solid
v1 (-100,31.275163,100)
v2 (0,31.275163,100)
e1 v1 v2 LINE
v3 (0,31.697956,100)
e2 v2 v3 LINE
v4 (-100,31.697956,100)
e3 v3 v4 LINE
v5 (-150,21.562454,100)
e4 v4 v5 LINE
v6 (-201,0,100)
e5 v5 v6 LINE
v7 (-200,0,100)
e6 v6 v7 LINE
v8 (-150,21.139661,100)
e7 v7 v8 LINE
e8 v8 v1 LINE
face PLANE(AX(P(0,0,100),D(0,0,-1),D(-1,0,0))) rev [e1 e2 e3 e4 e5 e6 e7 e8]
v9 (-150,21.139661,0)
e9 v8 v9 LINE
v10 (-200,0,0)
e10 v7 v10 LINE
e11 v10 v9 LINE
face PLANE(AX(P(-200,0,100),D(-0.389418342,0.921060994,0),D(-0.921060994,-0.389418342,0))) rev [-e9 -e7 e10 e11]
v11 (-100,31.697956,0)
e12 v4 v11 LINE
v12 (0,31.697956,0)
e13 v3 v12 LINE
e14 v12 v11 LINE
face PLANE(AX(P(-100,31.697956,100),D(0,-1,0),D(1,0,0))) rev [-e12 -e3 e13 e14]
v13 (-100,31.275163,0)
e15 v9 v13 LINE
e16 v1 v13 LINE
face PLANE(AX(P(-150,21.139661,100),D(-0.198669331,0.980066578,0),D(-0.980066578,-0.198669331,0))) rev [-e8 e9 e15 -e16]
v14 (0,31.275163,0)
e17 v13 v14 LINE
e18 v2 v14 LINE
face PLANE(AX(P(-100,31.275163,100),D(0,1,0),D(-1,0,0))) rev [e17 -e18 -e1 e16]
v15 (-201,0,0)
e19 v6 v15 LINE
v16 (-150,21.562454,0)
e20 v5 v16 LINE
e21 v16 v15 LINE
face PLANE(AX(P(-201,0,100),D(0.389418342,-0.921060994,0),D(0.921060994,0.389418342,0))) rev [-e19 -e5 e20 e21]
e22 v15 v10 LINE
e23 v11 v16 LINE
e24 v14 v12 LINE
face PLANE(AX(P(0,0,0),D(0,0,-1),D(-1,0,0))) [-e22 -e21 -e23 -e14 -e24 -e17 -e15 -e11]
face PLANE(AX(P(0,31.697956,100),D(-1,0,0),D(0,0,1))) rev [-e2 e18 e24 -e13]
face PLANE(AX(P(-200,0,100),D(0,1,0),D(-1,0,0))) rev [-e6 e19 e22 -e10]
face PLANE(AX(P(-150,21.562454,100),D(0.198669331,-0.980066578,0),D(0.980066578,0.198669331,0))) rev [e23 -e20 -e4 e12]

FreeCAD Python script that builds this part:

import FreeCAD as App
import Part
import Sketcher
from FreeCAD import Vector
Q = App.Units.Quantity


def add_polygon(sketch, points):
    """Adds a closed chain of lines whose ends are joined by coincident constraints."""
    first, n = sketch.GeometryCount, len(points)
    for a, b in zip(points, points[1:] + points[:1]):
        sketch.addGeometry(Part.LineSegment(App.Vector(*a, 0), App.Vector(*b, 0)), False)
    for i in range(n):
        sketch.addConstraint(Sketcher.Constraint("Coincident", first + i, 2, first + (i + 1) % n, 1))

doc = App.newDocument("Part")
body = doc.addObject("PartDesign::Body", "Body")

# Sketch on XY plane
sketch1 = body.newObject("Sketcher::SketchObject", "Sketch")
sketch1.AttachmentSupport = (doc.getObject("XY_Plane"), [""])
sketch1.MapMode = "FlatFace"
add_polygon(sketch1, [(-200, 0), (-150, 21.14), (-100, 31.28), (0, 31.28), (0, 31.7), (-100, 31.7), (-150, 21.56), (-201, 0)])  # lines 0-7
sketch1.addConstraint(Sketcher.Constraint("Horizontal", 2))
sketch1.addConstraint(Sketcher.Constraint("Vertical", 3))
sketch1.addConstraint(Sketcher.Constraint("Horizontal", 4))
sketch1.addConstraint(Sketcher.Constraint("Horizontal", 7))
sketch1.addConstraint(Sketcher.Constraint("PointOnObject", 2, 2, -2))
sketch1.addConstraint(Sketcher.Constraint("PointOnObject", 6, 2, -1))
sketch1.addConstraint(Sketcher.Constraint("Parallel", 1, 5))
sketch1.addConstraint(Sketcher.Constraint("Parallel", 0, 6))
sketch1.addConstraint(Sketcher.Constraint("Vertical", 1, 2, 4, 2))
sketch1.addConstraint(Sketcher.Constraint("Vertical", 0, 2, 5, 2))
sketch1.addConstraint(Sketcher.Constraint("DistanceX", 2, 1, 2, 2, Q("100 mm")))
sketch1.addConstraint(Sketcher.Constraint("DistanceX", 7, 1, 7, 2, Q("1 mm")))
sketch1.addConstraint(Sketcher.Constraint("DistanceX", 0, 2, -1, 1, Q("150 mm")))
sketch1.addConstraint(Sketcher.Constraint("DistanceX", 6, 2, -1, 1, Q("201 mm")))
sketch1.addConstraint(Sketcher.Constraint("DistanceY", 0, 2, 1, 2, Q("10.135502 mm")))
sketch1.addConstraint(Sketcher.Constraint("Distance", 0, Q("54.285221 mm")))
pad1 = body.newObject("PartDesign::Pad", "Pad")
pad1.Profile = sketch1
pad1.Length = 100

doc.recompute()
